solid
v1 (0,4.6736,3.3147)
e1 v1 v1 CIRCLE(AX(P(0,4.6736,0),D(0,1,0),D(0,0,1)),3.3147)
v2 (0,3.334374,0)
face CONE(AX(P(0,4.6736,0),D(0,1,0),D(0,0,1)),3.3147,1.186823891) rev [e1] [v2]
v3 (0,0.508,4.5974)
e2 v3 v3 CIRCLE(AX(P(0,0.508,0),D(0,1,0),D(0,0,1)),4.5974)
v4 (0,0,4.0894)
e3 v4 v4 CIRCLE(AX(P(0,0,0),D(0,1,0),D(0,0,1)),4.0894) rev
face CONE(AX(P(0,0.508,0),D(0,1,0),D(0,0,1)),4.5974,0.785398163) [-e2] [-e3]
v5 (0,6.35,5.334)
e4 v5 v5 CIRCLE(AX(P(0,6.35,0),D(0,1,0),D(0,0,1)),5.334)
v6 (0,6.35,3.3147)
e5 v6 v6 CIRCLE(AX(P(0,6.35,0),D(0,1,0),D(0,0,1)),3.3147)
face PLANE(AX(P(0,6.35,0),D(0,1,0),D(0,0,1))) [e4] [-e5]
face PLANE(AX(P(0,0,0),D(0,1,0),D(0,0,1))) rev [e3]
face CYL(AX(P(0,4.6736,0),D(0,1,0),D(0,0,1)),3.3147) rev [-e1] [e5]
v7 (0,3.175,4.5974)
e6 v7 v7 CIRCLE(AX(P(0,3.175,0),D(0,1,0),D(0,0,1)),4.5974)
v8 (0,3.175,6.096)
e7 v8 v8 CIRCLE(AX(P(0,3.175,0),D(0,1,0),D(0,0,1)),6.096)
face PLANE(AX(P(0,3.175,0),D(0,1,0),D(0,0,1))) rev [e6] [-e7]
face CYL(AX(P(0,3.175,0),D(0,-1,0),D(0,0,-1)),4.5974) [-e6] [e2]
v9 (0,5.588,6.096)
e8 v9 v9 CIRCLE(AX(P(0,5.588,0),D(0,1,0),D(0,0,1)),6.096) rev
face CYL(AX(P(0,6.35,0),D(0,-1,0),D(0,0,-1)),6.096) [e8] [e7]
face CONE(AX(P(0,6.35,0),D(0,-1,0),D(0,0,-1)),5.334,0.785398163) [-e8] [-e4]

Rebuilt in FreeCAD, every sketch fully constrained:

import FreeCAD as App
import Part
import Sketcher
from FreeCAD import Vector
Q = App.Units.Quantity


def edges_at(feature, points):
    """Names of the edges that pass closest to the given points."""
    edges = feature.Shape.Edges
    near = lambda p: min(range(len(edges)), key=lambda i: edges[i].distToShape(Part.Vertex(*p))[0])
    return sorted({f"Edge{near(p) + 1}" for p in points})

doc = App.newDocument("Part")
body = doc.addObject("PartDesign::Body", "Body")

sketch1 = body.newObject("Sketcher::SketchObject", "Sketch")
sketch1.AttachmentSupport = (doc.getObject("XZ_Plane"), [""])
sketch1.MapMode = "FlatFace"
sketch1.addGeometry(Part.Circle(Vector(0, 0, 0), Vector(0, 0, 1), 4.6), False)
sketch1.addConstraint([
    Sketcher.Constraint("Coincident", 0, 3, -1, 1),
    Sketcher.Constraint("Diameter", 0, Q("0.362 in")),
])
pad1 = body.newObject("PartDesign::Pad", "Pad")
pad1.Profile = sketch1
pad1.Length = Q("0.125 in")
pad1.Reversed = True

sketch2 = body.newObject("Sketcher::SketchObject", "Sketch001")
sketch2.AttachmentSupport = (doc.getObject("XZ_Plane"), [""])
sketch2.MapMode = "FlatFace"
sketch2.AttachmentOffset = App.Placement(Vector(0, 0, -0.125 * 25.4), App.Rotation())
sketch2.addGeometry(Part.Circle(Vector(0, 0, 0), Vector(0, 0, 1), 6), False)
sketch2.addConstraint([
    Sketcher.Constraint("Coincident", 0, 3, -1, 1),
    Sketcher.Constraint("Diameter", 0, Q("0.48 in")),
])
pad2 = body.newObject("PartDesign::Pad", "Pad001")
pad2.Profile = sketch2
pad2.Length = Q("0.125 in")
pad2.Reversed = True
doc.recompute()

chamfer = body.newObject("PartDesign::Chamfer", "Chamfer")
chamfer.Base = (pad2, edges_at(pad2, [(0, 6.35, -6.096)]))
chamfer.Size = Q("0.03 in")
doc.recompute()

chamfer2 = body.newObject("PartDesign::Chamfer", "Chamfer001")
chamfer2.Base = (chamfer, edges_at(chamfer, [(0, 0, -4.597)]))
chamfer2.Size = Q("0.02 in")

sketch3 = body.newObject("Sketcher::SketchObject", "Sketch002")
sketch3.AttachmentSupport = (doc.getObject("XZ_Plane"), [""])
sketch3.MapMode = "FlatFace"
sketch3.AttachmentOffset = App.Placement(Vector(0, 0, -0.25 * 25.4), App.Rotation())
sketch3.addGeometry(Part.Circle(Vector(0, 0, 0), Vector(0, 0, 1), 3.3), False)
sketch3.addConstraint([
    Sketcher.Constraint("Coincident", 0, 3, -1, 1),
    Sketcher.Constraint("Diameter", 0, Q("0.261 in")),
])
pocket1 = body.newObject("PartDesign::Pocket", "Pocket")
pocket1.Profile = sketch3
pocket1.Length = Q("0.066 in")
pocket1.Reversed = True

sketch4 = body.newObject("Sketcher::SketchObject", "Sketch003")
sketch4.AttachmentSupport = (doc.getObject("YZ_Plane"), [""])
sketch4.MapMode = "FlatFace"
sketch4.addGeometry([
    Part.LineSegment(Vector(4.7, 0, 0), Vector(4.7, 3.3, 0)),
    Part.LineSegment(Vector(4.7, 3.3, 0), Vector(3.3, 0, 0)),
    Part.LineSegment(Vector(3.3, 0, 0), Vector(4.7, 0, 0)),
], False)
sketch4.addConstraint([
    Sketcher.Constraint("Coincident", 0, 2, 1, 1),
    Sketcher.Constraint("Coincident", 1, 2, 2, 1),
    Sketcher.Constraint("Coincident", 2, 2, 0, 1),
    Sketcher.Constraint("Vertical", 0),
    Sketcher.Constraint("Horizontal", 2),
    Sketcher.Constraint("PointOnObject", 1, 2, -1),
    Sketcher.Constraint("Angle", 1, Q("-112 deg")),
    Sketcher.Constraint("DistanceY", 0, 1, 0, 2, Q("0.1305 in")),
    Sketcher.Constraint("DistanceX", -1, 1, 0, 2, Q("0.184 in")),
])
groove = body.newObject("PartDesign::Groove", "Groove")
groove.Profile = sketch4
groove.ReferenceAxis = (sketch4, ["H_Axis"])
groove.Angle = 360

doc.recompute()
